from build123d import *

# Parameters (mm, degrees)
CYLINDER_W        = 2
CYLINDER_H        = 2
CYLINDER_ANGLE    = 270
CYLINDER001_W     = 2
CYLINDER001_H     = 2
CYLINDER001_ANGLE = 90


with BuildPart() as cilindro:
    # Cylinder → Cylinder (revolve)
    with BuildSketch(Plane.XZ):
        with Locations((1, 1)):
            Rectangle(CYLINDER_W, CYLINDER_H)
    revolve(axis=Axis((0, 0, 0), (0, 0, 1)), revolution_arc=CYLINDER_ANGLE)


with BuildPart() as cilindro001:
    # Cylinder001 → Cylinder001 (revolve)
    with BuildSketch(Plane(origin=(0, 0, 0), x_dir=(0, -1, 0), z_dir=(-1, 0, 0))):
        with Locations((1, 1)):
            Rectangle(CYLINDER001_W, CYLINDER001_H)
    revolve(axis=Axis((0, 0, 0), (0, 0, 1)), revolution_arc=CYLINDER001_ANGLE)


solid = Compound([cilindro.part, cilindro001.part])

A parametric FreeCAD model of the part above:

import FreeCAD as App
import Part
import Sketcher

V = App.Vector

doc = App.newDocument("Part")
body = doc.addObject("PartDesign::Body", "Body")

# Sketch on XZ plane
sketch1 = doc.addObject("Sketcher::SketchObject", "Sketch")
body.addObject(sketch1)
sketch1.AttachmentSupport = (doc.XZ_Plane, [""])
sketch1.MapMode = "FlatFace"
sketch1.addGeometry(Part.LineSegment(V(0, 2, 0), V(0, 0, 0)), False)
sketch1.addGeometry(Part.LineSegment(V(0, 0, 0), V(2, 0, 0)), False)
sketch1.addGeometry(Part.LineSegment(V(2, 0, 0), V(2, 2, 0)), False)
sketch1.addGeometry(Part.LineSegment(V(2, 2, 0), V(0, 2, 0)), False)
sketch1.addConstraint(Sketcher.Constraint("Coincident", 0, 2, 1, 1))
sketch1.addConstraint(Sketcher.Constraint("Coincident", 1, 2, 2, 1))
sketch1.addConstraint(Sketcher.Constraint("Coincident", 2, 2, 3, 1))
sketch1.addConstraint(Sketcher.Constraint("Coincident", 3, 2, 0, 1))
sketch1.addConstraint(Sketcher.Constraint("Vertical", 0))
sketch1.addConstraint(Sketcher.Constraint("Horizontal", 1))
sketch1.addConstraint(Sketcher.Constraint("Vertical", 2))
sketch1.addConstraint(Sketcher.Constraint("Horizontal", 3))
sketch1.addConstraint(Sketcher.Constraint("Coincident", 0, 2, -1, 1))
sketch1.addConstraint(Sketcher.Constraint("Equal", 3, 0))
sketch1.addConstraint(Sketcher.Constraint("DistanceX", 1, 1, 1, 2, 2.0))
revolution = doc.addObject("PartDesign::Revolution", "Revolution")
body.addObject(revolution)
revolution.Profile = sketch1
revolution.ReferenceAxis = (sketch1, ["V_Axis"])
revolution.Angle = 270
body2 = doc.addObject("PartDesign::Body", "Body001")

# Sketch on YZ plane
sketch2 = doc.addObject("Sketcher::SketchObject", "Sketch001")
body2.addObject(sketch2)
sketch2.AttachmentSupport = (doc.getObject("YZ_Plane001"), [""])
sketch2.MapMode = "FlatFace"
sketch2.addGeometry(Part.LineSegment(V(0, 2, 0), V(0, 0, 0)), False)
sketch2.addGeometry(Part.LineSegment(V(0, 0, 0), V(-2, 0, 0)), False)
sketch2.addGeometry(Part.LineSegment(V(-2, 0, 0), V(-2, 2, 0)), False)
sketch2.addGeometry(Part.LineSegment(V(-2, 2, 0), V(0, 2, 0)), False)
sketch2.addConstraint(Sketcher.Constraint("Coincident", 0, 2, 1, 1))
sketch2.addConstraint(Sketcher.Constraint("Coincident", 1, 2, 2, 1))
sketch2.addConstraint(Sketcher.Constraint("Coincident", 2, 2, 3, 1))
sketch2.addConstraint(Sketcher.Constraint("Coincident", 3, 2, 0, 1))
sketch2.addConstraint(Sketcher.Constraint("Vertical", 0))
sketch2.addConstraint(Sketcher.Constraint("Horizontal", 1))
sketch2.addConstraint(Sketcher.Constraint("Vertical", 2))
sketch2.addConstraint(Sketcher.Constraint("Horizontal", 3))
sketch2.addConstraint(Sketcher.Constraint("Coincident", 0, 2, -1, 1))
sketch2.addConstraint(Sketcher.Constraint("Equal", 3, 0))
sketch2.addConstraint(Sketcher.Constraint("DistanceX", 1, 2, 1, 1, 2.0))
revolution2 = doc.addObject("PartDesign::Revolution", "Revolution001")
body2.addObject(revolution2)
revolution2.Profile = sketch2
revolution2.ReferenceAxis = (sketch2, ["V_Axis"])
revolution2.Angle = 90

doc.recompute()
